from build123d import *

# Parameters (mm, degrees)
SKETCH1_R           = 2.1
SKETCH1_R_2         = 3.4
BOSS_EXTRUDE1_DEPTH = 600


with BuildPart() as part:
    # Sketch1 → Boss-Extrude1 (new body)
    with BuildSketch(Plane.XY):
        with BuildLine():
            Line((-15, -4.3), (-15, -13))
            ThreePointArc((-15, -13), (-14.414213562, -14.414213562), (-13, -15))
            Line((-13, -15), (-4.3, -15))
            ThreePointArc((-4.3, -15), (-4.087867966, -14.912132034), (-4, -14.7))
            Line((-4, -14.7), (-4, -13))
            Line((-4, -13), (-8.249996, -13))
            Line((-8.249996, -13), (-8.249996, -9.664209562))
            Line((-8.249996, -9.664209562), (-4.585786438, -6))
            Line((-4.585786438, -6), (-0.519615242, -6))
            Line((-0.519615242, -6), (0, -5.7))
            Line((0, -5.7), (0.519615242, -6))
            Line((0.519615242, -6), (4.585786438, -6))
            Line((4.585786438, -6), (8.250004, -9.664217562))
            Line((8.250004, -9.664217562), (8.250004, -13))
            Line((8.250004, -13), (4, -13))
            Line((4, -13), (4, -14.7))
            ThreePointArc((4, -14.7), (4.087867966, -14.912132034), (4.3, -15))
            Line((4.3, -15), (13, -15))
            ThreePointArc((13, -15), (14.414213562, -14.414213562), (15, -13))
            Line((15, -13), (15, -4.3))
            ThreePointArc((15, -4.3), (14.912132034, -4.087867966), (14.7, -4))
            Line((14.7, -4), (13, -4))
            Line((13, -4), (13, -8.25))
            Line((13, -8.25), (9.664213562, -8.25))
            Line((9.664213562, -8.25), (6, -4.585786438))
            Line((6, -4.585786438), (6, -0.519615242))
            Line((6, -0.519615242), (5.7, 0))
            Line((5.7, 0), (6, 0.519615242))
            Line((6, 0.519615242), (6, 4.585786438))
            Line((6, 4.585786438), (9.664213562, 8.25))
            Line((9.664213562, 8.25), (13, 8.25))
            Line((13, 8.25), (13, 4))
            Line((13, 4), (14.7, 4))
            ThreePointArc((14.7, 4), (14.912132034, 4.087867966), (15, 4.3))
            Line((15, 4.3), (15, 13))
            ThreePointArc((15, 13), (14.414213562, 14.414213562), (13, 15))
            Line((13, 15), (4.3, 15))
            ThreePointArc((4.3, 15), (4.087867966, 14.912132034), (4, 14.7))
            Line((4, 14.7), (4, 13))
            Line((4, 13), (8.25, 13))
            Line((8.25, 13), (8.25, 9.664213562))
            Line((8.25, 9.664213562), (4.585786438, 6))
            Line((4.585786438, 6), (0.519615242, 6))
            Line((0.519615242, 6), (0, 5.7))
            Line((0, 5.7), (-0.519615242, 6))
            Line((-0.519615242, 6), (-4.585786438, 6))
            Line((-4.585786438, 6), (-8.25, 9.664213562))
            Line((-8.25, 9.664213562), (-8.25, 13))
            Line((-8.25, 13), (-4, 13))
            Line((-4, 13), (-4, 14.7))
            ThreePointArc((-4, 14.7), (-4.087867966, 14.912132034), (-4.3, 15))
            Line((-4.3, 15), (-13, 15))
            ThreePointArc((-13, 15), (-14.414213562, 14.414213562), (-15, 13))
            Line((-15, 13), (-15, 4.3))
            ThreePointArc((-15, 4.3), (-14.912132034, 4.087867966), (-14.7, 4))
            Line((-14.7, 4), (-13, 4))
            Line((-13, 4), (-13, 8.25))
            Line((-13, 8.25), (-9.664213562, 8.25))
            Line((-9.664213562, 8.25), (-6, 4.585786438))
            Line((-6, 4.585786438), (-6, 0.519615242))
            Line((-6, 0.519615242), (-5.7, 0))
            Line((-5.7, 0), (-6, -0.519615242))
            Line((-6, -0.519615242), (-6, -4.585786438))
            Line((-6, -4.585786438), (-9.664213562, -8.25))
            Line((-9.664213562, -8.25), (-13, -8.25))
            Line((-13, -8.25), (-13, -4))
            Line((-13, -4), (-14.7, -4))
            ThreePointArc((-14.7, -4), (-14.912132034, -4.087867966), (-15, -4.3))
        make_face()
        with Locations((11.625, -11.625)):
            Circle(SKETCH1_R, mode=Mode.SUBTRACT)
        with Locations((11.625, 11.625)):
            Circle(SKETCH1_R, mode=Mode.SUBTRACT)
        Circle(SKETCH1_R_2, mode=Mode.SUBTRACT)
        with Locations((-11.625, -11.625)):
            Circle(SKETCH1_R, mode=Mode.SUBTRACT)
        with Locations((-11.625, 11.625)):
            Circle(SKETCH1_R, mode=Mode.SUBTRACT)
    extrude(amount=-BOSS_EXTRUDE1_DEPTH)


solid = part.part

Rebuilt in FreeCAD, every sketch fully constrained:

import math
import FreeCAD as App
import Part
import Sketcher

V = App.Vector
Q = App.Units.Quantity

doc = App.newDocument("Part")
body = doc.addObject("PartDesign::Body", "Body")

sketch1 = body.newObject("Sketcher::SketchObject", "Sketch")
sketch1.AttachmentSupport = (doc.getObject("XY_Plane"), [""])
sketch1.MapMode = "FlatFace"
sketch1.addGeometry([
    Part.LineSegment(V(-15, -4.3, 0), V(-15, -13, 0)),
    Part.ArcOfCircle(Part.Circle(V(-13, -13, 0), V(0, 0, 1), 2), math.radians(-180), math.radians(-90)),
    Part.LineSegment(V(-13, -15, 0), V(-4.3, -15, 0)),
    Part.ArcOfCircle(Part.Circle(V(-4.3, -14.7, 0), V(0, 0, 1), 0.3), math.radians(-90), math.radians(0)),
    Part.LineSegment(V(-4, -14.7, 0), V(-4, -13, 0)),
    Part.LineSegment(V(-4, -13, 0), V(-8.25, -13, 0)),
    Part.LineSegment(V(-8.25, -13, 0), V(-8.25, -9.66, 0)),
    Part.LineSegment(V(-8.25, -9.66, 0), V(-4.59, -6, 0)),
    Part.LineSegment(V(-4.59, -6, 0), V(-0.52, -6, 0)),
    Part.LineSegment(V(-0.52, -6, 0), V(0, -5.7, 0)),
    Part.LineSegment(V(0, -5.7, 0), V(0.52, -6, 0)),
    Part.LineSegment(V(0.52, -6, 0), V(4.59, -6, 0)),
    Part.LineSegment(V(4.59, -6, 0), V(8.25, -9.66, 0)),
    Part.LineSegment(V(8.25, -9.66, 0), V(8.25, -13, 0)),
    Part.LineSegment(V(8.25, -13, 0), V(4, -13, 0)),
    Part.LineSegment(V(4, -13, 0), V(4, -14.7, 0)),
    Part.ArcOfCircle(Part.Circle(V(4.3, -14.7, 0), V(0, 0, 1), 0.3), math.radians(-180), math.radians(-90)),
    Part.LineSegment(V(4.3, -15, 0), V(13, -15, 0)),
    Part.ArcOfCircle(Part.Circle(V(13, -13, 0), V(0, 0, 1), 2), math.radians(-90), math.radians(0)),
    Part.LineSegment(V(15, -13, 0), V(15, -4.3, 0)),
    Part.ArcOfCircle(Part.Circle(V(14.7, -4.3, 0), V(0, 0, 1), 0.3), math.radians(0), math.radians(90)),
    Part.LineSegment(V(14.7, -4, 0), V(13, -4, 0)),
    Part.LineSegment(V(13, -4, 0), V(13, -8.25, 0)),
    Part.LineSegment(V(13, -8.25, 0), V(9.66, -8.25, 0)),
    Part.LineSegment(V(9.66, -8.25, 0), V(6, -4.59, 0)),
    Part.LineSegment(V(6, -4.59, 0), V(6, -0.52, 0)),
    Part.LineSegment(V(6, -0.52, 0), V(5.7, 0, 0)),
    Part.LineSegment(V(5.7, 0, 0), V(6, 0.52, 0)),
    Part.LineSegment(V(6, 0.52, 0), V(6, 4.59, 0)),
    Part.LineSegment(V(6, 4.59, 0), V(9.66, 8.25, 0)),
    Part.LineSegment(V(9.66, 8.25, 0), V(13, 8.25, 0)),
    Part.LineSegment(V(13, 8.25, 0), V(13, 4, 0)),
    Part.LineSegment(V(13, 4, 0), V(14.7, 4, 0)),
    Part.ArcOfCircle(Part.Circle(V(14.7, 4.3, 0), V(0, 0, 1), 0.3), math.radians(-90), math.radians(0)),
    Part.LineSegment(V(15, 4.3, 0), V(15, 13, 0)),
    Part.ArcOfCircle(Part.Circle(V(13, 13, 0), V(0, 0, 1), 2), math.radians(0), math.radians(90)),
    Part.LineSegment(V(13, 15, 0), V(4.3, 15, 0)),
    Part.ArcOfCircle(Part.Circle(V(4.3, 14.7, 0), V(0, 0, 1), 0.3), math.radians(90), math.radians(180)),
    Part.LineSegment(V(4, 14.7, 0), V(4, 13, 0)),
    Part.LineSegment(V(4, 13, 0), V(8.25, 13, 0)),
    Part.LineSegment(V(8.25, 13, 0), V(8.25, 9.66, 0)),
    Part.LineSegment(V(8.25, 9.66, 0), V(4.59, 6, 0)),
    Part.LineSegment(V(4.59, 6, 0), V(0.52, 6, 0)),
    Part.LineSegment(V(0.52, 6, 0), V(0, 5.7, 0)),
    Part.LineSegment(V(0, 5.7, 0), V(-0.52, 6, 0)),
    Part.LineSegment(V(-0.52, 6, 0), V(-4.59, 6, 0)),
    Part.LineSegment(V(-4.59, 6, 0), V(-8.25, 9.66, 0)),
    Part.LineSegment(V(-8.25, 9.66, 0), V(-8.25, 13, 0)),
    Part.LineSegment(V(-8.25, 13, 0), V(-4, 13, 0)),
    Part.LineSegment(V(-4, 13, 0), V(-4, 14.7, 0)),
    Part.ArcOfCircle(Part.Circle(V(-4.3, 14.7, 0), V(0, 0, 1), 0.3), math.radians(0), math.radians(90)),
    Part.LineSegment(V(-4.3, 15, 0), V(-13, 15, 0)),
    Part.ArcOfCircle(Part.Circle(V(-13, 13, 0), V(0, 0, 1), 2), math.radians(90), math.radians(180)),
    Part.LineSegment(V(-15, 13, 0), V(-15, 4.3, 0)),
    Part.ArcOfCircle(Part.Circle(V(-14.7, 4.3, 0), V(0, 0, 1), 0.3), math.radians(-180), math.radians(-90)),
    Part.LineSegment(V(-14.7, 4, 0), V(-13, 4, 0)),
    Part.LineSegment(V(-13, 4, 0), V(-13, 8.25, 0)),
    Part.LineSegment(V(-13, 8.25, 0), V(-9.66, 8.25, 0)),
    Part.LineSegment(V(-9.66, 8.25, 0), V(-6, 4.59, 0)),
    Part.LineSegment(V(-6, 4.59, 0), V(-6, 0.52, 0)),
    Part.LineSegment(V(-6, 0.52, 0), V(-5.7, 0, 0)),
    Part.LineSegment(V(-5.7, 0, 0), V(-6, -0.52, 0)),
    Part.LineSegment(V(-6, -0.52, 0), V(-6, -4.59, 0)),
    Part.LineSegment(V(-6, -4.59, 0), V(-9.66, -8.25, 0)),
    Part.LineSegment(V(-9.66, -8.25, 0), V(-13, -8.25, 0)),
    Part.LineSegment(V(-13, -8.25, 0), V(-13, -4, 0)),
    Part.LineSegment(V(-13, -4, 0), V(-14.7, -4, 0)),
    Part.ArcOfCircle(Part.Circle(V(-14.7, -4.3, 0), V(0, 0, 1), 0.3), math.radians(90), math.radians(180)),
    Part.Circle(V(-11.62, -11.62, 0), V(0, 0, 1), 2.1),
    Part.Circle(V(11.62, -11.62, 0), V(0, 0, 1), 2.1),
    Part.Circle(V(-11.62, 11.62, 0), V(0, 0, 1), 2.1),
    Part.Circle(V(0, 0, 0), V(0, 0, 1), 3.4),
    Part.Circle(V(11.62, 11.62, 0), V(0, 0, 1), 2.1),
], False)
sketch1.addConstraint([
    Sketcher.Constraint("Tangent", 0, 2, 1, 1),
    Sketcher.Constraint("Tangent", 1, 2, 2, 1),
    Sketcher.Constraint("Tangent", 2, 2, 3, 1),
    Sketcher.Constraint("Tangent", 3, 2, 4, 1),
    Sketcher.Constraint("Coincident", 4, 2, 5, 1),
    Sketcher.Constraint("Coincident", 5, 2, 6, 1),
    Sketcher.Constraint("Coincident", 6, 2, 7, 1),
    Sketcher.Constraint("Coincident", 7, 2, 8, 1),
    Sketcher.Constraint("Coincident", 8, 2, 9, 1),
    Sketcher.Constraint("Coincident", 9, 2, 10, 1),
    Sketcher.Constraint("Coincident", 10, 2, 11, 1),
    Sketcher.Constraint("Coincident", 11, 2, 12, 1),
    Sketcher.Constraint("Coincident", 12, 2, 13, 1),
    Sketcher.Constraint("Coincident", 13, 2, 14, 1),
    Sketcher.Constraint("Coincident", 14, 2, 15, 1),
    Sketcher.Constraint("Tangent", 15, 2, 16, 1),
    Sketcher.Constraint("Tangent", 16, 2, 17, 1),
    Sketcher.Constraint("Tangent", 17, 2, 18, 1),
    Sketcher.Constraint("Tangent", 18, 2, 19, 1),
    Sketcher.Constraint("Tangent", 19, 2, 20, 1),
    Sketcher.Constraint("Tangent", 20, 2, 21, 1),
    Sketcher.Constraint("Coincident", 21, 2, 22, 1),
    Sketcher.Constraint("Coincident", 22, 2, 23, 1),
    Sketcher.Constraint("Coincident", 23, 2, 24, 1),
    Sketcher.Constraint("Coincident", 24, 2, 25, 1),
    Sketcher.Constraint("Coincident", 25, 2, 26, 1),
    Sketcher.Constraint("Coincident", 26, 2, 27, 1),
    Sketcher.Constraint("Coincident", 27, 2, 28, 1),
    Sketcher.Constraint("Coincident", 28, 2, 29, 1),
    Sketcher.Constraint("Coincident", 29, 2, 30, 1),
    Sketcher.Constraint("Coincident", 30, 2, 31, 1),
    Sketcher.Constraint("Coincident", 31, 2, 32, 1),
    Sketcher.Constraint("Tangent", 32, 2, 33, 1),
    Sketcher.Constraint("Tangent", 33, 2, 34, 1),
    Sketcher.Constraint("Tangent", 34, 2, 35, 1),
    Sketcher.Constraint("Tangent", 35, 2, 36, 1),
    Sketcher.Constraint("Tangent", 36, 2, 37, 1),
    Sketcher.Constraint("Tangent", 37, 2, 38, 1),
    Sketcher.Constraint("Coincident", 38, 2, 39, 1),
    Sketcher.Constraint("Coincident", 39, 2, 40, 1),
    Sketcher.Constraint("Coincident", 40, 2, 41, 1),
    Sketcher.Constraint("Coincident", 41, 2, 42, 1),
    Sketcher.Constraint("Coincident", 42, 2, 43, 1),
    Sketcher.Constraint("Coincident", 43, 2, 44, 1),
    Sketcher.Constraint("Coincident", 44, 2, 45, 1),
    Sketcher.Constraint("Coincident", 45, 2, 46, 1),
    Sketcher.Constraint("Coincident", 46, 2, 47, 1),
    Sketcher.Constraint("Coincident", 47, 2, 48, 1),
    Sketcher.Constraint("Coincident", 48, 2, 49, 1),
    Sketcher.Constraint("Tangent", 49, 2, 50, 1),
    Sketcher.Constraint("Tangent", 50, 2, 51, 1),
    Sketcher.Constraint("Tangent", 51, 2, 52, 1),
    Sketcher.Constraint("Tangent", 52, 2, 53, 1),
    Sketcher.Constraint("Tangent", 53, 2, 54, 1),
    Sketcher.Constraint("Tangent", 54, 2, 55, 1),
    Sketcher.Constraint("Coincident", 55, 2, 56, 1),
    Sketcher.Constraint("Coincident", 56, 2, 57, 1),
    Sketcher.Constraint("Coincident", 57, 2, 58, 1),
    Sketcher.Constraint("Coincident", 58, 2, 59, 1),
    Sketcher.Constraint("Coincident", 59, 2, 60, 1),
    Sketcher.Constraint("Coincident", 60, 2, 61, 1),
    Sketcher.Constraint("Coincident", 61, 2, 62, 1),
    Sketcher.Constraint("Coincident", 62, 2, 63, 1),
    Sketcher.Constraint("Coincident", 63, 2, 64, 1),
    Sketcher.Constraint("Coincident", 64, 2, 65, 1),
    Sketcher.Constraint("Coincident", 65, 2, 66, 1),
    Sketcher.Constraint("Tangent", 66, 2, 67, 1),
    Sketcher.Constraint("Tangent", 67, 2, 0, 1),
    Sketcher.Constraint("Vertical", 0),
    Sketcher.Constraint("Horizontal", 2),
    Sketcher.Constraint("Vertical", 4),
    Sketcher.Constraint("Horizontal", 5),
    Sketcher.Constraint("Vertical", 6),
    Sketcher.Constraint("Horizontal", 8),
    Sketcher.Constraint("Horizontal", 11),
    Sketcher.Constraint("Vertical", 13),
    Sketcher.Constraint("Horizontal", 14),
    Sketcher.Constraint("Vertical", 15),
    Sketcher.Constraint("Horizontal", 17),
    Sketcher.Constraint("Vertical", 19),
    Sketcher.Constraint("Horizontal", 21),
    Sketcher.Constraint("Vertical", 22),
    Sketcher.Constraint("Horizontal", 23),
    Sketcher.Constraint("Vertical", 25),
    Sketcher.Constraint("Vertical", 28),
    Sketcher.Constraint("Horizontal", 30),
    Sketcher.Constraint("Vertical", 31),
    Sketcher.Constraint("Horizontal", 32),
    Sketcher.Constraint("Vertical", 34),
    Sketcher.Constraint("Horizontal", 36),
    Sketcher.Constraint("Vertical", 38),
    Sketcher.Constraint("Horizontal", 39),
    Sketcher.Constraint("Vertical", 40),
    Sketcher.Constraint("Horizontal", 42),
    Sketcher.Constraint("Horizontal", 45),
    Sketcher.Constraint("Vertical", 47),
    Sketcher.Constraint("Horizontal", 48),
    Sketcher.Constraint("Vertical", 49),
    Sketcher.Constraint("Horizontal", 51),
    Sketcher.Constraint("Vertical", 53),
    Sketcher.Constraint("Horizontal", 55),
    Sketcher.Constraint("Vertical", 56),
    Sketcher.Constraint("Horizontal", 57),
    Sketcher.Constraint("Vertical", 59),
    Sketcher.Constraint("Vertical", 62),
    Sketcher.Constraint("Horizontal", 64),
    Sketcher.Constraint("Vertical", 65),
    Sketcher.Constraint("Horizontal", 66),
    Sketcher.Constraint("Coincident", 71, 3, -1, 1),
    Sketcher.Constraint("Equal", 3, 16),
    Sketcher.Constraint("Equal", 1, 18),
    Sketcher.Constraint("Equal", 16, 20),
    Sketcher.Constraint("Equal", 20, 33),
    Sketcher.Constraint("Equal", 18, 35),
    Sketcher.Constraint("Equal", 33, 37),
    Sketcher.Constraint("Equal", 37, 50),
    Sketcher.Constraint("Equal", 35, 52),
    Sketcher.Constraint("Equal", 50, 54),
    Sketcher.Constraint("Equal", 54, 67),
    Sketcher.Constraint("Equal", 68, 69),
    Sketcher.Constraint("Equal", 69, 70),
    Sketcher.Constraint("Equal", 70, 72),
    Sketcher.Constraint("Symmetric", 1, 3, 35, 3, -1, 1),
    Sketcher.Constraint("Symmetric", 16, 3, 50, 3, -1, 1),
    Sketcher.Constraint("Symmetric", 20, 3, 54, 3, -1, 1),
    Sketcher.Constraint("Symmetric", 69, 3, 70, 3, -1, 1),
    Sketcher.Constraint("Symmetric", 68, 3, 72, 3, -1, 1),
    Sketcher.Constraint("Symmetric", 4, 2, 38, 2, -1, 1),
    Sketcher.Constraint("Symmetric", 6, 2, 40, 2, -1, 1),
    Sketcher.Constraint("Symmetric", 7, 2, 41, 2, -1, 1),
    Sketcher.Constraint("Symmetric", 9, 2, 43, 2, -1, 1),
    Sketcher.Constraint("Symmetric", 10, 2, 44, 2, -1, 1),
    Sketcher.Constraint("Symmetric", 12, 2, 46, 2, -1, 1),
    Sketcher.Constraint("Symmetric", 22, 2, 56, 2, -1, 1),
    Sketcher.Constraint("Symmetric", 24, 2, 58, 2, -1, 1),
    Sketcher.Constraint("Symmetric", 26, 2, 60, 2, -1, 1),
    Sketcher.Constraint("Symmetric", 27, 2, 61, 2, -1, 1),
    Sketcher.Constraint("Symmetric", 29, 2, 63, 2, -1, 1),
    Sketcher.Constraint("Symmetric", 31, 2, 65, 2, -1, 1),
    Sketcher.Constraint("Symmetric", 3, 3, 16, 3, -2),
    Sketcher.Constraint("Symmetric", 33, 3, 54, 3, -2),
    Sketcher.Constraint("Symmetric", 68, 3, 69, 3, -2),
    Sketcher.Constraint("Symmetric", 8, 2, 10, 2, -2),
    Sketcher.Constraint("Symmetric", 5, 2, 13, 2, -2),
    Sketcher.Constraint("Symmetric", 30, 2, 56, 2, -2),
    Sketcher.Constraint("Symmetric", 28, 2, 58, 2, -2),
    Sketcher.Constraint("PointOnObject", 9, 2, -2),
    Sketcher.Constraint("PointOnObject", 26, 2, -1),
    Sketcher.Constraint("Perpendicular", 7, 12),
    Sketcher.Constraint("Parallel", 12, 24),
    Sketcher.Constraint("Perpendicular", 9, 26),
    Sketcher.Constraint("Perpendicular", 10, 27),
    Sketcher.Constraint("Perpendicular", 24, 29),
    Sketcher.Constraint("Perpendicular", 26, 43),
    Sketcher.Constraint("Perpendicular", 41, 46),
    Sketcher.Constraint("Parallel", 46, 58),
    Sketcher.Constraint("Perpendicular", 43, 60),
    Sketcher.Constraint("Perpendicular", 58, 63),
    Sketcher.Constraint("Horizontal", 0, 2, 4, 2),
    Sketcher.Constraint("Horizontal", 40, 2, 46, 2),
    Sketcher.Constraint("Horizontal", 39, 2, 47, 2),
    Sketcher.Constraint("Vertical", 17, 2, 21, 2),
    Sketcher.Constraint("Vertical", 23, 2, 29, 2),
    Sketcher.Constraint("Equal", 51, 0),
    Sketcher.Constraint("Equal", 48, 22),
    Sketcher.Constraint("Equal", 45, 25),
    Sketcher.Constraint("Equal", 64, 40),
    Sketcher.Constraint("Equal", 10, 26),
    Sketcher.Constraint("Equal", 29, 41),
    Sketcher.Constraint("Radius", 1, Q("2 mm")),
    Sketcher.Constraint("Diameter", 68, Q("4.2 mm")),
    Sketcher.Constraint("Diameter", 71, Q("6.8 mm")),
    Sketcher.Constraint("Radius", 3, Q("0.3 mm")),
    Sketcher.Constraint("Angle", 9, Q("30 deg")),
    Sketcher.Constraint("DistanceX", 2, 1, 2, 2, Q("8.7 mm")),
    Sketcher.Constraint("DistanceX", 1, 3, -1, 1, Q("13 mm")),
    Sketcher.Constraint("DistanceY", 7, 2, -1, 1, Q("6 mm")),
    Sketcher.Constraint("Distance", 9, Q("0.6 mm")),
    Sketcher.Constraint("DistanceX", 39, 1, 39, 2, Q("4.25 mm")),
    Sketcher.Constraint("DistanceX", 68, 3, -1, 1, Q("11.625 mm")),
    Sketcher.Constraint("DistanceY", 68, 3, -1, 1, Q("11.625 mm")),
    Sketcher.Constraint("DistanceX", 8, 1, 8, 2, Q("4.066171 mm")),
])
pad1 = body.newObject("PartDesign::Pad", "Pad")
pad1.Profile = sketch1
pad1.Length = 600
pad1.Reversed = True

doc.recompute()
